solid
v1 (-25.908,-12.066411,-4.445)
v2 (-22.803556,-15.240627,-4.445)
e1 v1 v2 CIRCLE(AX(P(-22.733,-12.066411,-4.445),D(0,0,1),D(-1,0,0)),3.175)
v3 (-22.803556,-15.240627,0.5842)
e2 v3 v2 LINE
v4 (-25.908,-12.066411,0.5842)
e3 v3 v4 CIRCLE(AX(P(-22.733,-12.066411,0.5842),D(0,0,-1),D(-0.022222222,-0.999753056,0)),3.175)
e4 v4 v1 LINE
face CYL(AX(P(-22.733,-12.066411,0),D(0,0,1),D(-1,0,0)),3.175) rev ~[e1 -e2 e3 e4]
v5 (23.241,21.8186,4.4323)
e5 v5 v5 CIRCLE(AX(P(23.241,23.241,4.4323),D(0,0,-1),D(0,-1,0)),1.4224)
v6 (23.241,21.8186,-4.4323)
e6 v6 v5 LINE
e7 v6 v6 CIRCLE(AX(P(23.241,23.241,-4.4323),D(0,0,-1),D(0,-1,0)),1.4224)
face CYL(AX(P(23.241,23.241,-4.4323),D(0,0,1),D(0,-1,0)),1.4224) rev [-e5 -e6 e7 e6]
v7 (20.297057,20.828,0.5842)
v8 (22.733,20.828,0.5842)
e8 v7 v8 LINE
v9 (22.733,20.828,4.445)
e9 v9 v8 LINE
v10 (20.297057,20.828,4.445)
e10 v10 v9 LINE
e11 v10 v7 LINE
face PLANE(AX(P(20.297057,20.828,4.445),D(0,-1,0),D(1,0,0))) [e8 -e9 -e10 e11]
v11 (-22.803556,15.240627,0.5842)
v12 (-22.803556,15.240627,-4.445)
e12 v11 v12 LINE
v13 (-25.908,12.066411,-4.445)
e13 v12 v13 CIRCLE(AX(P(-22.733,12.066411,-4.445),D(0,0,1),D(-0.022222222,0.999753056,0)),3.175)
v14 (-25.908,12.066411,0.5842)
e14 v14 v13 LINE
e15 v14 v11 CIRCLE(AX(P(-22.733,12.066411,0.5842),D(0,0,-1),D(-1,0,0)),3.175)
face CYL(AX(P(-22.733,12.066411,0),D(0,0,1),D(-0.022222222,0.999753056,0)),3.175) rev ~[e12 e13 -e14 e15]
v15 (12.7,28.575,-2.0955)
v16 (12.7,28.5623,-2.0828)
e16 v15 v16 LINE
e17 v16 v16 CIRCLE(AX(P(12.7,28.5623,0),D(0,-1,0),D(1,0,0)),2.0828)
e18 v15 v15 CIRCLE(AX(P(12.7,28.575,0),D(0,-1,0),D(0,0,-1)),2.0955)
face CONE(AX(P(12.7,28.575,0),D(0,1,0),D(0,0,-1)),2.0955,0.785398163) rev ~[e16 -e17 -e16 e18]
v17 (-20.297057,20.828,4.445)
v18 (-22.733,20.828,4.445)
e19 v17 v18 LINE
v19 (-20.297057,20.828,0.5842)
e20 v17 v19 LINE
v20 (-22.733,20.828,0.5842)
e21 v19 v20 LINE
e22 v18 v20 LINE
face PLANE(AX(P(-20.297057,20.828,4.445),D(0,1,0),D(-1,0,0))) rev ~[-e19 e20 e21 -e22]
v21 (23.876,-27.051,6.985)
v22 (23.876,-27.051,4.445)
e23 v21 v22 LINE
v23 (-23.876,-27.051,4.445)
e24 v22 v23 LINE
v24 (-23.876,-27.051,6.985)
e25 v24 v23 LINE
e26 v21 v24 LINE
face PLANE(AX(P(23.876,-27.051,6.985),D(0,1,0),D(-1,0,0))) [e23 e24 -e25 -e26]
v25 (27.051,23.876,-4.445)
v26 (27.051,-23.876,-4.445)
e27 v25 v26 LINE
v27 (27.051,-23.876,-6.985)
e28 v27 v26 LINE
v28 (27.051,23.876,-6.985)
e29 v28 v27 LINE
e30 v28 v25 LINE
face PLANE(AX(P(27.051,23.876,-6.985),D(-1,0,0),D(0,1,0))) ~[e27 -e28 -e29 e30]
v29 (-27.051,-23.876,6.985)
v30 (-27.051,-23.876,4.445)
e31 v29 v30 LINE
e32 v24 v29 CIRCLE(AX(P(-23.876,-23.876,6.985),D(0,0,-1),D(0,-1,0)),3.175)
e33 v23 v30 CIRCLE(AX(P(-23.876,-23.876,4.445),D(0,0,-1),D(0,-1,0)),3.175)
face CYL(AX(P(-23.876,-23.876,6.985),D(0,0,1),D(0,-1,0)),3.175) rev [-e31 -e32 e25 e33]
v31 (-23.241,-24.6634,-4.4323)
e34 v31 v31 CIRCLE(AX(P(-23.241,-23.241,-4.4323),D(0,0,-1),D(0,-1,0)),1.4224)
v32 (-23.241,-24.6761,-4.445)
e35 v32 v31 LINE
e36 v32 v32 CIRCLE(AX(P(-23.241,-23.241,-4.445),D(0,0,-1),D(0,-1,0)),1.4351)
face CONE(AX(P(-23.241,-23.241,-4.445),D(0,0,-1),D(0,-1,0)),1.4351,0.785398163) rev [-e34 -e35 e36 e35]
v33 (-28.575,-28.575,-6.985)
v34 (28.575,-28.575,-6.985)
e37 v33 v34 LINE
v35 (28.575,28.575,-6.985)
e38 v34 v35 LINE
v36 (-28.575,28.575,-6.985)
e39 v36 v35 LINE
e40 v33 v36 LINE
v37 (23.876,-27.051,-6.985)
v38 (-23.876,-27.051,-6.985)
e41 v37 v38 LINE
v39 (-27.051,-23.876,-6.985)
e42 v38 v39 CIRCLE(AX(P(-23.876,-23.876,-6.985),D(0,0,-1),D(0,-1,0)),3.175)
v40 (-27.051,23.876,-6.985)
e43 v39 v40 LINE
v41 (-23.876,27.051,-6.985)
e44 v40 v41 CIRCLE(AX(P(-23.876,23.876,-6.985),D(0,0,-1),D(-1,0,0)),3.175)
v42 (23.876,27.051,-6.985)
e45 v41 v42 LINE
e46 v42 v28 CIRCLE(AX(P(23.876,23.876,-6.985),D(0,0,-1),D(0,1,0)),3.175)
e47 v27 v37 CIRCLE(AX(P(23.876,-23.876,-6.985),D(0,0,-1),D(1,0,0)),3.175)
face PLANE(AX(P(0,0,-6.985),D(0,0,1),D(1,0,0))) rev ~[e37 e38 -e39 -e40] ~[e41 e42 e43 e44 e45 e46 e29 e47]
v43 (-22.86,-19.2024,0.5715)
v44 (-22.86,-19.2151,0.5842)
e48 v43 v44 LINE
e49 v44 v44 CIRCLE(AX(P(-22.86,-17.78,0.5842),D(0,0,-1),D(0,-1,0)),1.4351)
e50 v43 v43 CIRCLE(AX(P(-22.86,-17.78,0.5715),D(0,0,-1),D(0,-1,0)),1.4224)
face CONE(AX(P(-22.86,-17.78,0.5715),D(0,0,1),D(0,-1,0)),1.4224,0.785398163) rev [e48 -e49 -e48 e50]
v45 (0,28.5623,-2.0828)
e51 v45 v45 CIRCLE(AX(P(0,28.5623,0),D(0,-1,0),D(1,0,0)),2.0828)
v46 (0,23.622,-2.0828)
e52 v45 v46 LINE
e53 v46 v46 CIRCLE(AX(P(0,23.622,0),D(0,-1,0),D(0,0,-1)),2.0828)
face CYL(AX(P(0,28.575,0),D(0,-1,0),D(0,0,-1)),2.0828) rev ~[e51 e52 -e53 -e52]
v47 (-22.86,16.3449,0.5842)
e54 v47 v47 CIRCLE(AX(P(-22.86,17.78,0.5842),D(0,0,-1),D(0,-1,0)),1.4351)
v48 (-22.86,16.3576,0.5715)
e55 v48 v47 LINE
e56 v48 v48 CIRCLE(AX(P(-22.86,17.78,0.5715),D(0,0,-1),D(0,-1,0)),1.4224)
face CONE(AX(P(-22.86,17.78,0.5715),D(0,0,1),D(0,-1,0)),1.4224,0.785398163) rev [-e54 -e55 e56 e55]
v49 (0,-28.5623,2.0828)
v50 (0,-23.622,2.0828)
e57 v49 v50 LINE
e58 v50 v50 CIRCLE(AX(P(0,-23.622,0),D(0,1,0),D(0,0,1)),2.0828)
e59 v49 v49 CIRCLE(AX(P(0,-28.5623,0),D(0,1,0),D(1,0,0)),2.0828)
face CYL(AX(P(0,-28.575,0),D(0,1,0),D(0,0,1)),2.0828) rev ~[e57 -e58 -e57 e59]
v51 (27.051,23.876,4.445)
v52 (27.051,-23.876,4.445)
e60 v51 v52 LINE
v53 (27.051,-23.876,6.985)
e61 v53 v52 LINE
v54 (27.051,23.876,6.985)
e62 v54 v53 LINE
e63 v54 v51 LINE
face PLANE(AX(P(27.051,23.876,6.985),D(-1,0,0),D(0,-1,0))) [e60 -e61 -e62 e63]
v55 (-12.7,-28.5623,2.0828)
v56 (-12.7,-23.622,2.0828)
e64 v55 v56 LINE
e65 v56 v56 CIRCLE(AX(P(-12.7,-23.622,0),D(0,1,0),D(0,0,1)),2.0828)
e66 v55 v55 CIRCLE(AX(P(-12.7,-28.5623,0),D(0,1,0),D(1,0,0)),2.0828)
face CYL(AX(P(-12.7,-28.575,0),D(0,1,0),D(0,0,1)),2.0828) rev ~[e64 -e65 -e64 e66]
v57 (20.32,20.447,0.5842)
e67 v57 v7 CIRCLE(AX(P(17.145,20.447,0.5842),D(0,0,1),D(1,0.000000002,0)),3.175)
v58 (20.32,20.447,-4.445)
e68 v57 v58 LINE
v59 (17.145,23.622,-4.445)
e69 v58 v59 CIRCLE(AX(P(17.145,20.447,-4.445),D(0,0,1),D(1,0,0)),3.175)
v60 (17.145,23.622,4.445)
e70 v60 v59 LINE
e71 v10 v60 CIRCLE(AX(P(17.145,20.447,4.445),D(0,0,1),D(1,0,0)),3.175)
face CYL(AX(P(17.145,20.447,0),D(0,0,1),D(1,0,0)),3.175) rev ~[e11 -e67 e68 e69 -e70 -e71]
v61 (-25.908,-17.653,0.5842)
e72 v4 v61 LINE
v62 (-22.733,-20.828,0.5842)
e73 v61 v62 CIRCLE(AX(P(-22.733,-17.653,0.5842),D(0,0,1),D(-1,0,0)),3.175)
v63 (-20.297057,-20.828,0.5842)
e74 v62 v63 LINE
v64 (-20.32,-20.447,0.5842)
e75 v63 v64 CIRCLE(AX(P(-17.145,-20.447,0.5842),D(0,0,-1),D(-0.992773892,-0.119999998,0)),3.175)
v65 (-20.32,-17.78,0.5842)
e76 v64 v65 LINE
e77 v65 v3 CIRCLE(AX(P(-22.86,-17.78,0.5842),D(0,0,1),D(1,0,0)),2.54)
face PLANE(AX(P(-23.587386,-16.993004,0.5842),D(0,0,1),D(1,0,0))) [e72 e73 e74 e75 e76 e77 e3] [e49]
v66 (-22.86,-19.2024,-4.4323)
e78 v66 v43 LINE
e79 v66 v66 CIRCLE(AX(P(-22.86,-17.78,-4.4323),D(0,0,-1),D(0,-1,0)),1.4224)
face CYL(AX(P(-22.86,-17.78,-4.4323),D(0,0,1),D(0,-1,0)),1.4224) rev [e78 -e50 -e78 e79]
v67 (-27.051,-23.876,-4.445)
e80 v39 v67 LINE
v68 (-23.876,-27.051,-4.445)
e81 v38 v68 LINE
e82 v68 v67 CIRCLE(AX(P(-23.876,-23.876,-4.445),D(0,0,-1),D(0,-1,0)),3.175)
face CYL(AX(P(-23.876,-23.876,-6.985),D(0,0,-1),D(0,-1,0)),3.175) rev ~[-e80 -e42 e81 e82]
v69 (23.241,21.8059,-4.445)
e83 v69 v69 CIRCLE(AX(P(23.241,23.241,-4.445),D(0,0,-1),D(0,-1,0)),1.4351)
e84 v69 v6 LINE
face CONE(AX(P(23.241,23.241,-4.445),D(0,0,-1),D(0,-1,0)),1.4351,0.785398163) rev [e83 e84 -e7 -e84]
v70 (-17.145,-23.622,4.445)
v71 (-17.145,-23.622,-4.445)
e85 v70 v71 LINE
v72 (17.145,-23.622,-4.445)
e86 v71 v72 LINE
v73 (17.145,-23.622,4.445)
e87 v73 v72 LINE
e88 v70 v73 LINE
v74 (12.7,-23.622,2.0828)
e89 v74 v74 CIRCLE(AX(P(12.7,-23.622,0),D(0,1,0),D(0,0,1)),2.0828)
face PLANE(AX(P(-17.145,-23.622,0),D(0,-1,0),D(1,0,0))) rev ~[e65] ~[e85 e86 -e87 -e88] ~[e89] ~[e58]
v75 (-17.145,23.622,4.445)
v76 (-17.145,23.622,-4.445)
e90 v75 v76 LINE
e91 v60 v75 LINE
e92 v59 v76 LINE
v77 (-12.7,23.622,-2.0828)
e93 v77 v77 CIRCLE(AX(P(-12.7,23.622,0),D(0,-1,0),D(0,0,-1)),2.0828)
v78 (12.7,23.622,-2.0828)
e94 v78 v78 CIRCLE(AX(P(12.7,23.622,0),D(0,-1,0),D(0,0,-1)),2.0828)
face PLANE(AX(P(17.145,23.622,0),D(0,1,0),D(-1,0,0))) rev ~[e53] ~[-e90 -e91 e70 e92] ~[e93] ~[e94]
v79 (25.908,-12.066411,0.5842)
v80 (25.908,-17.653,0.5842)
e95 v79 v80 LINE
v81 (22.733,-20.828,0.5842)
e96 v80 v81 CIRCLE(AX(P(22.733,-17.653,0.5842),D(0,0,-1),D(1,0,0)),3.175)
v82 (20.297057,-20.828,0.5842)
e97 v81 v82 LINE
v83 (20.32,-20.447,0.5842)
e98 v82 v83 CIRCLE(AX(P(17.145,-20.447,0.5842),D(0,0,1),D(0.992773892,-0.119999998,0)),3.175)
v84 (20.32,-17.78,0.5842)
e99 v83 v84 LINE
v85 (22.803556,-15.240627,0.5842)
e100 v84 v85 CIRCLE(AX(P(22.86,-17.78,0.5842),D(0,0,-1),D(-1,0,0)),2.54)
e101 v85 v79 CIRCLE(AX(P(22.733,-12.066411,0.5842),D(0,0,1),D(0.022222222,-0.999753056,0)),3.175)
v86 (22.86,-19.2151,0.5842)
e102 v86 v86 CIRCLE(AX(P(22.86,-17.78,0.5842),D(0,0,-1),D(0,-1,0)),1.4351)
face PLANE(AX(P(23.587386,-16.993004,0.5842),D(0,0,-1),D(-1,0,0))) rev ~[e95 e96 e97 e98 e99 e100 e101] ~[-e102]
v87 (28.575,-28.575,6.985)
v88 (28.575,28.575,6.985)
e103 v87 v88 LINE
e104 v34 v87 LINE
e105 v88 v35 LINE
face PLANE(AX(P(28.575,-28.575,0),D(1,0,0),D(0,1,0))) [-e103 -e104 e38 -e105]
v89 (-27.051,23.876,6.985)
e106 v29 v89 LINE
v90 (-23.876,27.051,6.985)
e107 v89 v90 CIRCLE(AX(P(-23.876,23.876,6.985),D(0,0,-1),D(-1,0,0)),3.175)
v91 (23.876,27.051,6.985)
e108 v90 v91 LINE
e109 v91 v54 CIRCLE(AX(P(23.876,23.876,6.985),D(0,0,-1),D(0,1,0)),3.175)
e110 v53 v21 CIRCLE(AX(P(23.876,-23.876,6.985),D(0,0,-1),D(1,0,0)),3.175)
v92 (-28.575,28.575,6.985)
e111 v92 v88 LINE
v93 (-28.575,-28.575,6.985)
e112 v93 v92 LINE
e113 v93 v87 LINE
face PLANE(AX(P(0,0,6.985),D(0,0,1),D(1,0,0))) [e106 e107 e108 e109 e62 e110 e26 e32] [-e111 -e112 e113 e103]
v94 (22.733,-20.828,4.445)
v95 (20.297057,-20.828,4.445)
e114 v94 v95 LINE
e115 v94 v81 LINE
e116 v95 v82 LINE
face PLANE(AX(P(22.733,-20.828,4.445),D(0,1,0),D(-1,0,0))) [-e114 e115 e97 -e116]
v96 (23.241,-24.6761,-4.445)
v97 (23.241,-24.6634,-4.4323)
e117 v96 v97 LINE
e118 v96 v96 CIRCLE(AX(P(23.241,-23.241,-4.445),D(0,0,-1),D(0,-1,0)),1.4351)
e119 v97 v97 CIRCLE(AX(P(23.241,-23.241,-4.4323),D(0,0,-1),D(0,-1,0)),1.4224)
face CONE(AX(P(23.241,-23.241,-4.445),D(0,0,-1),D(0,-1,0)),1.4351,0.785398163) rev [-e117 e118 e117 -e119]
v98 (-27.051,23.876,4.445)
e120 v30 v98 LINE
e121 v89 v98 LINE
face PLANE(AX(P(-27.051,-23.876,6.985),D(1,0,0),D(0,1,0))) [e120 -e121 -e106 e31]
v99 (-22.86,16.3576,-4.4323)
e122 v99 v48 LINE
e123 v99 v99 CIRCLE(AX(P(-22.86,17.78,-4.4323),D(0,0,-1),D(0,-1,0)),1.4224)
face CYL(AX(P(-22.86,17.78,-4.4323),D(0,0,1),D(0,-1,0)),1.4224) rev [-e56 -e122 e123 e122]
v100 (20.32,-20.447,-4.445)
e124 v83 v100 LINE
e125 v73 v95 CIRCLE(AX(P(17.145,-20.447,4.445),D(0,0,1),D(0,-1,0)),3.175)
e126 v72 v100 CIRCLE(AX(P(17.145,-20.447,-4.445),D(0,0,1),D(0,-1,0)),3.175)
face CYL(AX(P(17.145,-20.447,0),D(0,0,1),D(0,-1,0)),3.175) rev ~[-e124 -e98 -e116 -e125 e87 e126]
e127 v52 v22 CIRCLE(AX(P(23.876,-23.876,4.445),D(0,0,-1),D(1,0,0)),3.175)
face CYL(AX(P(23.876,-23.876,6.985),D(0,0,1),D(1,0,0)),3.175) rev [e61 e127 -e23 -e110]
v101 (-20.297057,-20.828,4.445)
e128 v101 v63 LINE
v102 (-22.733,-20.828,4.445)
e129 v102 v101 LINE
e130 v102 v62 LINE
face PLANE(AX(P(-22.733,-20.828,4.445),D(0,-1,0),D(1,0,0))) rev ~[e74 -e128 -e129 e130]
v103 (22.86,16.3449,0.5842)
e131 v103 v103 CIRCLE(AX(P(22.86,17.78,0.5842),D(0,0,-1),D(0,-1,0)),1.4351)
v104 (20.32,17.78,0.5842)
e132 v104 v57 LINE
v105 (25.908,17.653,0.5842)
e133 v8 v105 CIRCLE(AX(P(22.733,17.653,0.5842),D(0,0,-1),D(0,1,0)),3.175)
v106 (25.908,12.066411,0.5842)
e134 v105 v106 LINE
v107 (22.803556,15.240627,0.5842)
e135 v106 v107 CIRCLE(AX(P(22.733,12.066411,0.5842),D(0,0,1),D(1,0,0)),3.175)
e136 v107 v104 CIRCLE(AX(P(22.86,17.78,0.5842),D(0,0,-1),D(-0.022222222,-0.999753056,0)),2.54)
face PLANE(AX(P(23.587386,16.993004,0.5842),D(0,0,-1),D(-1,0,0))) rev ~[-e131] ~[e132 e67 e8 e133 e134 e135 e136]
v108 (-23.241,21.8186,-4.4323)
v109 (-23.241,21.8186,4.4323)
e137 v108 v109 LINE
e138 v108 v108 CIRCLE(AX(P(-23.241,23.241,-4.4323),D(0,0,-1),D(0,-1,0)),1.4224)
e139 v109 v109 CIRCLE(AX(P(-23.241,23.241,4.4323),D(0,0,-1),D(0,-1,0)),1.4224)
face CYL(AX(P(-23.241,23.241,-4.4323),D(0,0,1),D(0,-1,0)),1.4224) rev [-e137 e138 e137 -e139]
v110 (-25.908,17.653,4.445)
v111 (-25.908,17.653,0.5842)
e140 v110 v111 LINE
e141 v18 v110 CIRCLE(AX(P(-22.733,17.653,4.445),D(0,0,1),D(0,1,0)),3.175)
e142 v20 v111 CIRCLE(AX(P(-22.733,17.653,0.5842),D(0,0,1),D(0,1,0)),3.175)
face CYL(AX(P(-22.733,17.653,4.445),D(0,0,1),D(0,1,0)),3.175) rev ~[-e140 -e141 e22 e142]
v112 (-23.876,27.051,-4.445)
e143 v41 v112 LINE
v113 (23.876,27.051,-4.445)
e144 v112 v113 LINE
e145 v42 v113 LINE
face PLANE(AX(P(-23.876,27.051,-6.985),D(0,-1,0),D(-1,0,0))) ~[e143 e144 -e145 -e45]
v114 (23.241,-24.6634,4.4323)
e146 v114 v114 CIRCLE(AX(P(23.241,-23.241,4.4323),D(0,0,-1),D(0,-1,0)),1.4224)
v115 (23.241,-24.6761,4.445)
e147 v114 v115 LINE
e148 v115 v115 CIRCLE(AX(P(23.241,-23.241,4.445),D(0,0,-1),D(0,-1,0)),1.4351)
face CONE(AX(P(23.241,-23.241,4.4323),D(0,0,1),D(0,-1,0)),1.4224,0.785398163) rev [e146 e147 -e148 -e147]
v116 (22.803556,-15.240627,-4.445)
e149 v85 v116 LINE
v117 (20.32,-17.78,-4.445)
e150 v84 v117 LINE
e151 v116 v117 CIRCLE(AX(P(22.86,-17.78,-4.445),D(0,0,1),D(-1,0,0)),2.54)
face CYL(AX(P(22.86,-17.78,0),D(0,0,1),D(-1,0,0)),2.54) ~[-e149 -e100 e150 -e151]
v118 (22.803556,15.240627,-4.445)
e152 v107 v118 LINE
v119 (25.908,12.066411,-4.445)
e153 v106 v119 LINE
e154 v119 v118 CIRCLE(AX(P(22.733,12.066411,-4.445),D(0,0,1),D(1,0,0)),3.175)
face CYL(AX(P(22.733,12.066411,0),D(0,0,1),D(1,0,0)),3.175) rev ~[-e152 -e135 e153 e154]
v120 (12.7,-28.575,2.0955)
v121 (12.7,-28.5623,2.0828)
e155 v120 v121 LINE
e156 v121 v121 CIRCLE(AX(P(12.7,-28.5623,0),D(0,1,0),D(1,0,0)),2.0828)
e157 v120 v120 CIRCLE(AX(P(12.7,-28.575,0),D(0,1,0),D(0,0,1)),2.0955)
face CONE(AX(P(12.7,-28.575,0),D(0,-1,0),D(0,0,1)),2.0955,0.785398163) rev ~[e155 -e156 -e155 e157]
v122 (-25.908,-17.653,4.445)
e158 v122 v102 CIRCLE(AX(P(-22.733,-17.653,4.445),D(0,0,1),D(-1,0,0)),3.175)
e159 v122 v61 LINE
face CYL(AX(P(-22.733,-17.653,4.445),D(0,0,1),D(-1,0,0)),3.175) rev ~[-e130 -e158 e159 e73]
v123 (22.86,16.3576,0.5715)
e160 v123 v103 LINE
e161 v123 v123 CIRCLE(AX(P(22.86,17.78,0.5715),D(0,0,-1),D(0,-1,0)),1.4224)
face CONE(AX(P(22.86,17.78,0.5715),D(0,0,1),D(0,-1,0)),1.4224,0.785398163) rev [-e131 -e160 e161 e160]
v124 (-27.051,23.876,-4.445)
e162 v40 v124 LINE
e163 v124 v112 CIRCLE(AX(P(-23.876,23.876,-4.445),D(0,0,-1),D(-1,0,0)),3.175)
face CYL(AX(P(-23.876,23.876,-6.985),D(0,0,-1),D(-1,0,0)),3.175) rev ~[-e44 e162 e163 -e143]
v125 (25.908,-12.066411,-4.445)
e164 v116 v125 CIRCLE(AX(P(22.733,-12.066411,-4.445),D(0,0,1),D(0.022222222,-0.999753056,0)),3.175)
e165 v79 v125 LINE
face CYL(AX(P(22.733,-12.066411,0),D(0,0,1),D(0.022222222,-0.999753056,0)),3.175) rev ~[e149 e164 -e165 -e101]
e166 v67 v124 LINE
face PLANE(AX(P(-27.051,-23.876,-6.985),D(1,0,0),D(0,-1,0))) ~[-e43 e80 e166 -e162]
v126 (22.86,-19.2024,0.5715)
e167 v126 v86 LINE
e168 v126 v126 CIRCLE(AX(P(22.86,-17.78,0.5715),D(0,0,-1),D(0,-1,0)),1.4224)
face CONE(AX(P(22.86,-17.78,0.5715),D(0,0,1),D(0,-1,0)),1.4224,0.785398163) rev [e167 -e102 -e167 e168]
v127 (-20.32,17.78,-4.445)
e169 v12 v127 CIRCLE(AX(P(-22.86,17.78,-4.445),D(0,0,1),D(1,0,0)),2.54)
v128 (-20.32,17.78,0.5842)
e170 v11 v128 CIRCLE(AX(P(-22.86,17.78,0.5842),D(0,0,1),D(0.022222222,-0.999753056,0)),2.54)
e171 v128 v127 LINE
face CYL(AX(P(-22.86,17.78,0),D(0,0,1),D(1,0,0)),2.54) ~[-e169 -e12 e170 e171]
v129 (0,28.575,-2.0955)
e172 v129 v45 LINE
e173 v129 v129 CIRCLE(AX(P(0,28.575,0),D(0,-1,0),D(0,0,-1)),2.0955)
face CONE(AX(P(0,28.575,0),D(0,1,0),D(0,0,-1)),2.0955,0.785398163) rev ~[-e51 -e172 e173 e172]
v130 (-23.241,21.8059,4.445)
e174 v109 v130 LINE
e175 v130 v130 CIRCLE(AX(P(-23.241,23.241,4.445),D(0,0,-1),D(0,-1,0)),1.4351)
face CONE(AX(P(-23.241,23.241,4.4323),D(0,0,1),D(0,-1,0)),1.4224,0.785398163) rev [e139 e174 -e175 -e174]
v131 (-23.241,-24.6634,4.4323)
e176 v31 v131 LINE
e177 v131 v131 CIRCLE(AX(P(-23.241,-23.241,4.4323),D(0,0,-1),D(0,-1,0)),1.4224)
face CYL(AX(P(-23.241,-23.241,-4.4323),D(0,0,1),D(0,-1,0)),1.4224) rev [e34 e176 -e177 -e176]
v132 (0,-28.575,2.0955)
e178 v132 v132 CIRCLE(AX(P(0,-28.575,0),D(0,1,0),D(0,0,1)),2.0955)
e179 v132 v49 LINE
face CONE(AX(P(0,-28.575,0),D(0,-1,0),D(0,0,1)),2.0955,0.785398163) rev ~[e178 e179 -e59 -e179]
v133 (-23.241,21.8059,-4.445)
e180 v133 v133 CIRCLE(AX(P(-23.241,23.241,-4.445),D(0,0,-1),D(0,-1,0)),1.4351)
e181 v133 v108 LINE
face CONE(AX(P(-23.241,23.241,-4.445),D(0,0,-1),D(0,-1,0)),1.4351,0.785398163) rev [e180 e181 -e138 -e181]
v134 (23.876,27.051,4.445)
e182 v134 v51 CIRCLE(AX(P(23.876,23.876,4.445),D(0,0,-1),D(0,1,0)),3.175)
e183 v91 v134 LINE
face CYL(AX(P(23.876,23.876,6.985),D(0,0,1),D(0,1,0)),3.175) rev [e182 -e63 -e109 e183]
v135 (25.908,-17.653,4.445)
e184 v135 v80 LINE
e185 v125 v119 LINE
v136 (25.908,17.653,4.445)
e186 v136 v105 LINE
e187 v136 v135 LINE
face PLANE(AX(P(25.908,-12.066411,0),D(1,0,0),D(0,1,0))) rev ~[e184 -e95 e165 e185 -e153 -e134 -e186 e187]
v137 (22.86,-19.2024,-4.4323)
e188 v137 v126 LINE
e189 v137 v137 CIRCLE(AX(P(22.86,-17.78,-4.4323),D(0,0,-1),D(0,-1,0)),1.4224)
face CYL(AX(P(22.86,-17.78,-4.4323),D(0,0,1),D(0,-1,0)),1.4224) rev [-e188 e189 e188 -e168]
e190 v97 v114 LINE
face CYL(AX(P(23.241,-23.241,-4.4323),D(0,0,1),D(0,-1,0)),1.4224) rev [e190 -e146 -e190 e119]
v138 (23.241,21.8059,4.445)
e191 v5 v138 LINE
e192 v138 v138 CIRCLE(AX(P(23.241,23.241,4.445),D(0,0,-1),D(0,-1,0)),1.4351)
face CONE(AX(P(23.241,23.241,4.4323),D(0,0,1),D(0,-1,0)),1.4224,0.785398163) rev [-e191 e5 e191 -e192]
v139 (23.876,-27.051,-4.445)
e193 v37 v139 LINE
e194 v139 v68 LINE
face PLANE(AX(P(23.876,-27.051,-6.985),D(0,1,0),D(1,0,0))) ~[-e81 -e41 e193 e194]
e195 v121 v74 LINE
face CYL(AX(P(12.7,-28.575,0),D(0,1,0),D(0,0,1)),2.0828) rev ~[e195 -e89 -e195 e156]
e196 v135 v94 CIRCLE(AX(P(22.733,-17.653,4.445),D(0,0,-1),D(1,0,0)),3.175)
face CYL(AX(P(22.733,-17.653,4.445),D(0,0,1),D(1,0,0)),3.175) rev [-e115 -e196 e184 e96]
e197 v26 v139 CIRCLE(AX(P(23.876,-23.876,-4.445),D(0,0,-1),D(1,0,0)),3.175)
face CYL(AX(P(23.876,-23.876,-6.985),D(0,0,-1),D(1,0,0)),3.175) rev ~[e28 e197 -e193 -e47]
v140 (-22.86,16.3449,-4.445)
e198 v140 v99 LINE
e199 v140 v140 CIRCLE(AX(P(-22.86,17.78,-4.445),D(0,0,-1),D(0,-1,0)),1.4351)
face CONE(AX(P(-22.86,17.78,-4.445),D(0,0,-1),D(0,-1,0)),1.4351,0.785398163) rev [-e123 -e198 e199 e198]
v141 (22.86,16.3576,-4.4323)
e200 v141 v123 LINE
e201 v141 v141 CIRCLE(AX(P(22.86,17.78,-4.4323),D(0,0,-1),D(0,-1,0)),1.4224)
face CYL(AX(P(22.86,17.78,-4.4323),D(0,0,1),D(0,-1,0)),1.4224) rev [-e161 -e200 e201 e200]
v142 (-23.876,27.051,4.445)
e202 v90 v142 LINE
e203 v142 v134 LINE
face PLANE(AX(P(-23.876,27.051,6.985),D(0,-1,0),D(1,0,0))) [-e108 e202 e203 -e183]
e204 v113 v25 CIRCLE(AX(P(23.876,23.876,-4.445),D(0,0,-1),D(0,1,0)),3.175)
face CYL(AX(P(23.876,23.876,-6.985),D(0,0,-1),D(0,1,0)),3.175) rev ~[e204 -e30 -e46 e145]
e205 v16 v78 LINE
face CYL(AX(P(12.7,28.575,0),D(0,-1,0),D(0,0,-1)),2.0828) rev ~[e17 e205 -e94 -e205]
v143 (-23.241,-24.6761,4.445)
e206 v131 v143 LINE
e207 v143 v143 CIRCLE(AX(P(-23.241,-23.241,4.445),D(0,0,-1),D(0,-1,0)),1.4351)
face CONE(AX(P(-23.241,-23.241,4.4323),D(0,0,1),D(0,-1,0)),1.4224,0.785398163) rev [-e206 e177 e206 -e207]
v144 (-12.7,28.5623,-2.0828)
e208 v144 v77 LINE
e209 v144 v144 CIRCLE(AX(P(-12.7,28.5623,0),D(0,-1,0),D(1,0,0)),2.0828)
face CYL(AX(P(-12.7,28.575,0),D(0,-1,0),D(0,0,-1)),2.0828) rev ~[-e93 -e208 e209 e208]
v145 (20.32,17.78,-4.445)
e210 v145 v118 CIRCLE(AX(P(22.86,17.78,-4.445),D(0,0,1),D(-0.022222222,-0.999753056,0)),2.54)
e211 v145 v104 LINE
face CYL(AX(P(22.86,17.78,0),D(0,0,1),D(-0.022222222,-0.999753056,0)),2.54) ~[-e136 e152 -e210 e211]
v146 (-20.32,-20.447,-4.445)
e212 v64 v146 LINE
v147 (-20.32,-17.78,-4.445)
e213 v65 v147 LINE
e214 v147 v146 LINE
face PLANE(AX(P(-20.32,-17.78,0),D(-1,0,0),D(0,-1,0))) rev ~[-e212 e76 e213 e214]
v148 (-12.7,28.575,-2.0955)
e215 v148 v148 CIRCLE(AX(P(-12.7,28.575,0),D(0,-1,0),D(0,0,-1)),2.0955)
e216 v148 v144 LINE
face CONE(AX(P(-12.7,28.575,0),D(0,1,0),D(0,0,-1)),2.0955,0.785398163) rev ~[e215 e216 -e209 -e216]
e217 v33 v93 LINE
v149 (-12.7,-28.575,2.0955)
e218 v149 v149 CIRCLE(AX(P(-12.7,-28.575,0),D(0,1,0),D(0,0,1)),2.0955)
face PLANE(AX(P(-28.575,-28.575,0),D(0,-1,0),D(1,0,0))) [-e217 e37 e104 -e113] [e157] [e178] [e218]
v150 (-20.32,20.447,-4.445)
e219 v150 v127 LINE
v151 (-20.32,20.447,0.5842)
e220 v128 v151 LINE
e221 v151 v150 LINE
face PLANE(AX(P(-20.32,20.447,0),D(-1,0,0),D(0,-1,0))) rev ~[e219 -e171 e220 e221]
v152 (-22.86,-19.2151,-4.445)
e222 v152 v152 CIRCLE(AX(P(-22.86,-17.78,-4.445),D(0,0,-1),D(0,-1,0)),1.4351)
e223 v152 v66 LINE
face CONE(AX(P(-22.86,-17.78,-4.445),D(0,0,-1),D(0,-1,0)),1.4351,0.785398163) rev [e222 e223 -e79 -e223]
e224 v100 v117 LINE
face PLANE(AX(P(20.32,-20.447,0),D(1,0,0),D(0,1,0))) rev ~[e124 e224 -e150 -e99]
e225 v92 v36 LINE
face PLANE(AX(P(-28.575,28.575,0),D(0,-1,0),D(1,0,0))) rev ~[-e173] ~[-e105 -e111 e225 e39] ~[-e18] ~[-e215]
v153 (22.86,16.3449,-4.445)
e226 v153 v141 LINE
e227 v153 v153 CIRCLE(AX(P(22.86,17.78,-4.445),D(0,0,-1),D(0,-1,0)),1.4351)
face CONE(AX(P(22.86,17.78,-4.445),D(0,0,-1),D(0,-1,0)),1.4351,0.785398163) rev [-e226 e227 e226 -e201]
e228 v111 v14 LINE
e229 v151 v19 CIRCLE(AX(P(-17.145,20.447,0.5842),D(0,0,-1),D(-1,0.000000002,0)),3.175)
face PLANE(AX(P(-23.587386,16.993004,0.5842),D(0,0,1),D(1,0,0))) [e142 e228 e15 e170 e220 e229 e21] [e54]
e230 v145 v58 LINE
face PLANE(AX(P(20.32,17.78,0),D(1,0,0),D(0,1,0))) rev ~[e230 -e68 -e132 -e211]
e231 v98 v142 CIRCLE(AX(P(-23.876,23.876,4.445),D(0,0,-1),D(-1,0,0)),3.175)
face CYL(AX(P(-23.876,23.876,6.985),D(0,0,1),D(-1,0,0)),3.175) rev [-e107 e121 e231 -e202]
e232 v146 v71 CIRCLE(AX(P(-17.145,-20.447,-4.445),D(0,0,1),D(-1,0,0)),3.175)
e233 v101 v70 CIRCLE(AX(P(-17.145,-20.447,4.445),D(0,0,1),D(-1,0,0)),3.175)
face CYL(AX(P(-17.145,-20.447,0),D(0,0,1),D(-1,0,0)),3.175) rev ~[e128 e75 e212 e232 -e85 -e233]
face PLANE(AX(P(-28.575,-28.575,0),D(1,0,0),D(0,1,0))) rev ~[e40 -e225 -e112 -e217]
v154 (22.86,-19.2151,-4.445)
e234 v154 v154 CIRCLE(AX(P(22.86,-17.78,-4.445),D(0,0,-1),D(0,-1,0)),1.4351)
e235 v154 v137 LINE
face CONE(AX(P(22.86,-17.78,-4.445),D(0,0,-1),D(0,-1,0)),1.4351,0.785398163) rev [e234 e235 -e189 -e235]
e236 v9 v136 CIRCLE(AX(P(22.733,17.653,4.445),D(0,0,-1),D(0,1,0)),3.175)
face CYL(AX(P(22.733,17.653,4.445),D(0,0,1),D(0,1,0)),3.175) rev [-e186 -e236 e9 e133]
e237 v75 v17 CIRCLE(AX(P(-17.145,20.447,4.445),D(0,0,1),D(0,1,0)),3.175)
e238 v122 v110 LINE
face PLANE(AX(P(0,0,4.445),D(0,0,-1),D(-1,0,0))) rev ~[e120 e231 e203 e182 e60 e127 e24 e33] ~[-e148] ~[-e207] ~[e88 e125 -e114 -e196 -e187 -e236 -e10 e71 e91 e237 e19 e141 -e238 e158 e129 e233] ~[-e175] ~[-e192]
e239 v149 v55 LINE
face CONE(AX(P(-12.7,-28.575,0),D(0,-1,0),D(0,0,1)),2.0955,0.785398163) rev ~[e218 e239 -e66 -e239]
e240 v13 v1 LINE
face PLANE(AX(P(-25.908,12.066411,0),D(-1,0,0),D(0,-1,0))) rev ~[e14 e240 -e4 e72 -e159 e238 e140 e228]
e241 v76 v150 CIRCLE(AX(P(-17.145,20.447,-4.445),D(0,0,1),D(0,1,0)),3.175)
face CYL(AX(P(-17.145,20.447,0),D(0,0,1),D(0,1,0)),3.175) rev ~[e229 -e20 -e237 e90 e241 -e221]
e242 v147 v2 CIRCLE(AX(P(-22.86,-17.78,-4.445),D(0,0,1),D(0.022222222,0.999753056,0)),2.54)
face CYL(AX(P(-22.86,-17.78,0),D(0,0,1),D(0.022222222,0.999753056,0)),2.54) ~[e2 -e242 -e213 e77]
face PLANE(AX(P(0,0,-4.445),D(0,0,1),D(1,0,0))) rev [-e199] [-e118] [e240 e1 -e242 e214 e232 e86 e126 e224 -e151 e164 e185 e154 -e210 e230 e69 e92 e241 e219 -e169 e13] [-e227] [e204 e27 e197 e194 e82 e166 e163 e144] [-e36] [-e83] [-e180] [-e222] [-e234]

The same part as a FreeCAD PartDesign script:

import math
import FreeCAD as App
import Part
import Sketcher
from FreeCAD import Vector
Q = App.Units.Quantity


def add_polygon(sketch, points):
    """Adds a closed chain of lines whose ends are joined by coincident constraints."""
    first, n = sketch.GeometryCount, len(points)
    for a, b in zip(points, points[1:] + points[:1]):
        sketch.addGeometry(Part.LineSegment(App.Vector(*a, 0), App.Vector(*b, 0)), False)
    for i in range(n):
        sketch.addConstraint(Sketcher.Constraint("Coincident", first + i, 2, first + (i + 1) % n, 1))

doc = App.newDocument("Part")
body = doc.addObject("PartDesign::Body", "Body")

# Sketch on XY plane
sketch1 = body.newObject("Sketcher::SketchObject", "Sketch")
sketch1.AttachmentSupport = (doc.getObject("XY_Plane"), [""])
sketch1.MapMode = "FlatFace"
add_polygon(sketch1, [(-28.6, 28.6), (-28.6, -28.6), (28.6, -28.6), (28.6, 28.6)])  # lines 0-3
sketch1.addGeometry(Part.LineSegment(Vector(20.3, 20.4, 0), Vector(20.3, 17.8, 0)), False)  # 4
sketch1.addGeometry(Part.ArcOfCircle(Part.Circle(Vector(22.9, 17.8, 0), Vector(0, 0, 1), 2.5), math.radians(180), math.radians(269)), False)  # 5
sketch1.addGeometry(Part.ArcOfCircle(Part.Circle(Vector(22.7, 12.1, 0), Vector(0, 0, 1), 3.2), math.radians(0), math.radians(89)), False)  # 6
sketch1.addGeometry(Part.LineSegment(Vector(25.9, 12.1, 0), Vector(25.9, -12.1, 0)), False)  # 7
sketch1.addGeometry(Part.ArcOfCircle(Part.Circle(Vector(22.7, -12.1, 0), Vector(0, 0, 1), 3.2), math.radians(-89), math.radians(0)), False)  # 8
sketch1.addGeometry(Part.ArcOfCircle(Part.Circle(Vector(22.9, -17.8, 0), Vector(0, 0, 1), 2.5), math.radians(91), math.radians(180)), False)  # 9
sketch1.addGeometry(Part.LineSegment(Vector(20.3, -17.8, 0), Vector(20.3, -20.4, 0)), False)  # 10
sketch1.addGeometry(Part.ArcOfCircle(Part.Circle(Vector(17.1, -20.4, 0), Vector(0, 0, 1), 3.2), math.radians(-90), math.radians(0)), False)  # 11
sketch1.addGeometry(Part.LineSegment(Vector(17.1, -23.6, 0), Vector(-17.1, -23.6, 0)), False)  # 12
sketch1.addGeometry(Part.ArcOfCircle(Part.Circle(Vector(-17.1, -20.4, 0), Vector(0, 0, 1), 3.2), math.radians(-180), math.radians(-90)), False)  # 13
sketch1.addGeometry(Part.LineSegment(Vector(-20.3, -20.4, 0), Vector(-20.3, -17.8, 0)), False)  # 14
sketch1.addGeometry(Part.ArcOfCircle(Part.Circle(Vector(-22.9, -17.8, 0), Vector(0, 0, 1), 2.5), math.radians(0), math.radians(89)), False)  # 15
sketch1.addGeometry(Part.ArcOfCircle(Part.Circle(Vector(-22.7, -12.1, 0), Vector(0, 0, 1), 3.2), math.radians(180), math.radians(269)), False)  # 16
sketch1.addGeometry(Part.LineSegment(Vector(-25.9, -12.1, 0), Vector(-25.9, 12.1, 0)), False)  # 17
sketch1.addGeometry(Part.ArcOfCircle(Part.Circle(Vector(-22.7, 12.1, 0), Vector(0, 0, 1), 3.2), math.radians(91), math.radians(180)), False)  # 18
sketch1.addGeometry(Part.ArcOfCircle(Part.Circle(Vector(-22.9, 17.8, 0), Vector(0, 0, 1), 2.5), math.radians(-89), math.radians(0)), False)  # 19
sketch1.addGeometry(Part.LineSegment(Vector(-20.3, 17.8, 0), Vector(-20.3, 20.4, 0)), False)  # 20
sketch1.addGeometry(Part.ArcOfCircle(Part.Circle(Vector(-17.1, 20.4, 0), Vector(0, 0, 1), 3.2), math.radians(90), math.radians(180)), False)  # 21
sketch1.addGeometry(Part.LineSegment(Vector(-17.1, 23.6, 0), Vector(17.1, 23.6, 0)), False)  # 22
sketch1.addGeometry(Part.ArcOfCircle(Part.Circle(Vector(17.1, 20.4, 0), Vector(0, 0, 1), 3.2), math.radians(0), math.radians(90)), False)  # 23
sketch1.addConstraint([
    Sketcher.Constraint("Tangent", 4, 2, 5, 1),
    Sketcher.Constraint("Tangent", 5, 2, 6, 2),
    Sketcher.Constraint("Tangent", 6, 1, 7, 1),
    Sketcher.Constraint("Tangent", 7, 2, 8, 2),
    Sketcher.Constraint("Tangent", 8, 1, 9, 1),
    Sketcher.Constraint("Tangent", 9, 2, 10, 1),
    Sketcher.Constraint("Tangent", 10, 2, 11, 2),
    Sketcher.Constraint("Tangent", 11, 1, 12, 1),
    Sketcher.Constraint("Tangent", 12, 2, 13, 2),
    Sketcher.Constraint("Tangent", 13, 1, 14, 1),
    Sketcher.Constraint("Tangent", 14, 2, 15, 1),
    Sketcher.Constraint("Tangent", 15, 2, 16, 2),
    Sketcher.Constraint("Tangent", 16, 1, 17, 1),
    Sketcher.Constraint("Tangent", 17, 2, 18, 2),
    Sketcher.Constraint("Tangent", 18, 1, 19, 1),
    Sketcher.Constraint("Tangent", 19, 2, 20, 1),
    Sketcher.Constraint("Tangent", 20, 2, 21, 2),
    Sketcher.Constraint("Tangent", 21, 1, 22, 1),
    Sketcher.Constraint("Tangent", 22, 2, 23, 2),
    Sketcher.Constraint("Tangent", 23, 1, 4, 1),
    Sketcher.Constraint("Vertical", 0),
    Sketcher.Constraint("Horizontal", 1),
    Sketcher.Constraint("Vertical", 2),
    Sketcher.Constraint("Horizontal", 3),
    Sketcher.Constraint("Vertical", 4),
    Sketcher.Constraint("Vertical", 7),
    Sketcher.Constraint("Vertical", 10),
    Sketcher.Constraint("Horizontal", 12),
    Sketcher.Constraint("Vertical", 14),
    Sketcher.Constraint("Vertical", 17),
    Sketcher.Constraint("Vertical", 20),
    Sketcher.Constraint("Horizontal", 22),
    Sketcher.Constraint("Equal", 6, 8),
    Sketcher.Constraint("Equal", 5, 9),
    Sketcher.Constraint("Equal", 8, 11),
    Sketcher.Constraint("Equal", 11, 13),
    Sketcher.Constraint("Equal", 9, 15),
    Sketcher.Constraint("Equal", 13, 16),
    Sketcher.Constraint("Equal", 16, 18),
    Sketcher.Constraint("Equal", 15, 19),
    Sketcher.Constraint("Equal", 18, 21),
    Sketcher.Constraint("Equal", 21, 23),
    Sketcher.Constraint("Symmetric", 5, 3, 15, 3, -1, 1),
    Sketcher.Constraint("Symmetric", 8, 3, 18, 3, -1, 1),
    Sketcher.Constraint("Symmetric", 11, 3, 21, 3, -1, 1),
    Sketcher.Constraint("Symmetric", 0, 2, 2, 2, -1, 1),
    Sketcher.Constraint("Symmetric", 9, 3, 15, 3, -2),
    Sketcher.Constraint("Equal", 3, 0),
    Sketcher.Constraint("Radius", 5, Q("0.1 in")),
    Sketcher.Constraint("Radius", 6, Q("0.125 in")),
    Sketcher.Constraint("DistanceX", 1, 1, 1, 2, Q("2.25 in")),
    Sketcher.Constraint("DistanceX", 12, 2, 12, 1, Q("1.35 in")),
    Sketcher.Constraint("DistanceY", -1, 1, 5, 3, Q("0.7 in")),
    Sketcher.Constraint("DistanceY", 4, 2, 4, 1, Q("0.105 in")),
    Sketcher.Constraint("DistanceX", -1, 1, 6, 1, Q("1.02 in")),
])
pad1 = body.newObject("PartDesign::Pad", "Pad")
pad1.Profile = sketch1
pad1.Length = Q("0.55 in")
pad1.Midplane = True

# Sketch on XY plane
sketch2 = body.newObject("Sketcher::SketchObject", "Sketch001")
sketch2.AttachmentSupport = (doc.getObject("XY_Plane"), [""])
sketch2.MapMode = "FlatFace"
sketch2.AttachmentOffset = App.Placement(Vector(0, 0, 0.275 * 25.4), App.Rotation())
sketch2.addGeometry([
    Part.LineSegment(Vector(23.9, 27.1, 0), Vector(-23.9, 27.1, 0)),  # 0
    Part.ArcOfCircle(Part.Circle(Vector(-23.9, 23.9, 0), Vector(0, 0, 1), 3.2), math.radians(90), math.radians(180)),  # 1
    Part.LineSegment(Vector(-27.1, 23.9, 0), Vector(-27.1, -23.9, 0)),  # 2
    Part.ArcOfCircle(Part.Circle(Vector(-23.9, -23.9, 0), Vector(0, 0, 1), 3.2), math.radians(-180), math.radians(-90)),  # 3
    Part.LineSegment(Vector(-23.9, -27.1, 0), Vector(23.9, -27.1, 0)),  # 4
    Part.ArcOfCircle(Part.Circle(Vector(23.9, -23.9, 0), Vector(0, 0, 1), 3.2), math.radians(-90), math.radians(0)),  # 5
    Part.LineSegment(Vector(27.1, -23.9, 0), Vector(27.1, 23.9, 0)),  # 6
    Part.ArcOfCircle(Part.Circle(Vector(23.9, 23.9, 0), Vector(0, 0, 1), 3.2), math.radians(0), math.radians(90)),  # 7
], False)
sketch2.addConstraint([
    Sketcher.Constraint("Tangent", 0, 2, 1, 1),
    Sketcher.Constraint("Tangent", 1, 2, 2, 1),
    Sketcher.Constraint("Tangent", 2, 2, 3, 1),
    Sketcher.Constraint("Tangent", 3, 2, 4, 1),
    Sketcher.Constraint("Tangent", 4, 2, 5, 1),
    Sketcher.Constraint("Tangent", 5, 2, 6, 1),
    Sketcher.Constraint("Tangent", 6, 2, 7, 1),
    Sketcher.Constraint("Tangent", 7, 2, 0, 1),
    Sketcher.Constraint("Horizontal", 0),
    Sketcher.Constraint("Vertical", 2),
    Sketcher.Constraint("Horizontal", 4),
    Sketcher.Constraint("Vertical", 6),
    Sketcher.Constraint("Equal", 1, 3),
    Sketcher.Constraint("Equal", 3, 5),
    Sketcher.Constraint("Equal", 5, 7),
    Sketcher.Constraint("Symmetric", 1, 3, 5, 3, -1, 1),
    Sketcher.Constraint("Equal", 4, 2),
    Sketcher.Constraint("Radius", 1, Q("0.125 in")),
    Sketcher.Constraint("DistanceX", 0, 2, 0, 1, Q("1.88 in")),
])
pocket1 = body.newObject("PartDesign::Pocket", "Pocket")
pocket1.Profile = sketch2
pocket1.Length = Q("0.1 in")
doc.recompute()

mirrored = body.newObject("PartDesign::Mirrored", "Mirrored")
mirrored.Originals = [pocket1]
mirrored.MirrorPlane = (doc.getObject("XY_Plane"), [""])
body.Tip = mirrored

# Sketch on XY plane
sketch3 = body.newObject("Sketcher::SketchObject", "Sketch002")
sketch3.AttachmentSupport = (doc.getObject("XY_Plane"), [""])
sketch3.MapMode = "FlatFace"
sketch3.AttachmentOffset = App.Placement(Vector(0, 0, 0.175 * 25.4), App.Rotation())
sketch3.addGeometry([
    Part.LineSegment(Vector(-20.32, 17.78, 0), Vector(-20.32, 20.45, 0)),  # 0
    Part.ArcOfCircle(Part.Circle(Vector(-17.14, 20.45, 0), Vector(0, 0, 1), 3.18), math.radians(173.11), math.radians(180)),  # 1
    Part.LineSegment(Vector(-20.3, 20.83, 0), Vector(-22.73, 20.83, 0)),  # 2
    Part.ArcOfCircle(Part.Circle(Vector(-22.73, 17.65, 0), Vector(0, 0, 1), 3.18), math.radians(90), math.radians(180)),  # 3
    Part.LineSegment(Vector(-25.91, 17.65, 0), Vector(-25.91, 12.07, 0)),  # 4
    Part.ArcOfCircle(Part.Circle(Vector(-22.73, 12.07, 0), Vector(0, 0, 1), 3.17), math.radians(91), math.radians(180)),  # 5
    Part.ArcOfCircle(Part.Circle(Vector(-22.86, 17.78, 0), Vector(0, 0, 1), 2.54), math.radians(-89), math.radians(0)),  # 6
    Part.LineSegment(Vector(25.91, -17.65, 0), Vector(25.91, -12.07, 0)),  # 7
    Part.ArcOfCircle(Part.Circle(Vector(22.73, -12.07, 0), Vector(0, 0, 1), 3.17), math.radians(-89), math.radians(0)),  # 8
    Part.ArcOfCircle(Part.Circle(Vector(22.86, -17.78, 0), Vector(0, 0, 1), 2.54), math.radians(91), math.radians(180)),  # 9
    Part.LineSegment(Vector(20.32, -17.78, 0), Vector(20.32, -20.45, 0)),  # 10
    Part.ArcOfCircle(Part.Circle(Vector(17.14, -20.45, 0), Vector(0, 0, 1), 3.18), math.radians(-6.89), math.radians(0)),  # 11
    Part.LineSegment(Vector(20.3, -20.83, 0), Vector(22.73, -20.83, 0)),  # 12
    Part.ArcOfCircle(Part.Circle(Vector(22.73, -17.65, 0), Vector(0, 0, 1), 3.18), math.radians(-90), math.radians(0)),  # 13
    Part.LineSegment(Vector(-25.91, -12.07, 0), Vector(-25.91, -17.65, 0)),  # 14
    Part.ArcOfCircle(Part.Circle(Vector(-22.73, -17.65, 0), Vector(0, 0, 1), 3.18), math.radians(-180), math.radians(-90)),  # 15
    Part.LineSegment(Vector(-22.73, -20.83, 0), Vector(-20.3, -20.83, 0)),  # 16
    Part.ArcOfCircle(Part.Circle(Vector(-17.14, -20.45, 0), Vector(0, 0, 1), 3.18), math.radians(-180), math.radians(-173.11)),  # 17
    Part.LineSegment(Vector(-20.32, -20.45, 0), Vector(-20.32, -17.78, 0)),  # 18
    Part.ArcOfCircle(Part.Circle(Vector(-22.86, -17.78, 0), Vector(0, 0, 1), 2.54), math.radians(0), math.radians(89)),  # 19
    Part.ArcOfCircle(Part.Circle(Vector(-22.73, -12.07, 0), Vector(0, 0, 1), 3.17), math.radians(180), math.radians(269)),  # 20
    Part.LineSegment(Vector(22.73, 20.83, 0), Vector(20.3, 20.83, 0)),  # 21
    Part.ArcOfCircle(Part.Circle(Vector(17.14, 20.45, 0), Vector(0, 0, 1), 3.18), math.radians(0), math.radians(6.89)),  # 22
    Part.LineSegment(Vector(20.32, 20.45, 0), Vector(20.32, 17.78, 0)),  # 23
    Part.ArcOfCircle(Part.Circle(Vector(22.86, 17.78, 0), Vector(0, 0, 1), 2.54), math.radians(180), math.radians(269)),  # 24
    Part.ArcOfCircle(Part.Circle(Vector(22.73, 12.07, 0), Vector(0, 0, 1), 3.17), math.radians(0), math.radians(89)),  # 25
    Part.LineSegment(Vector(25.91, 12.07, 0), Vector(25.91, 17.65, 0)),  # 26
    Part.ArcOfCircle(Part.Circle(Vector(22.73, 17.65, 0), Vector(0, 0, 1), 3.18), math.radians(0), math.radians(90)),  # 27
], False)
sketch3.addConstraint([
    Sketcher.Constraint("Tangent", 0, 2, 1, 2),
    Sketcher.Constraint("Coincident", 1, 1, 2, 1),
    Sketcher.Constraint("Tangent", 2, 2, 3, 1),
    Sketcher.Constraint("Tangent", 3, 2, 4, 1),
    Sketcher.Constraint("Tangent", 4, 2, 5, 2),
    Sketcher.Constraint("Tangent", 5, 1, 6, 1),
    Sketcher.Constraint("Tangent", 6, 2, 0, 1),
    Sketcher.Constraint("Tangent", 7, 2, 8, 2),
    Sketcher.Constraint("Tangent", 8, 1, 9, 1),
    Sketcher.Constraint("Tangent", 9, 2, 10, 1),
    Sketcher.Constraint("Tangent", 10, 2, 11, 2),
    Sketcher.Constraint("Coincident", 11, 1, 12, 1),
    Sketcher.Constraint("Tangent", 12, 2, 13, 1),
    Sketcher.Constraint("Tangent", 13, 2, 7, 1),
    Sketcher.Constraint("Tangent", 14, 2, 15, 1),
    Sketcher.Constraint("Tangent", 15, 2, 16, 1),
    Sketcher.Constraint("Coincident", 16, 2, 17, 2),
    Sketcher.Constraint("Tangent", 17, 1, 18, 1),
    Sketcher.Constraint("Tangent", 18, 2, 19, 1),
    Sketcher.Constraint("Tangent", 19, 2, 20, 2),
    Sketcher.Constraint("Tangent", 20, 1, 14, 1),
    Sketcher.Constraint("Coincident", 21, 2, 22, 2),
    Sketcher.Constraint("Tangent", 22, 1, 23, 1),
    Sketcher.Constraint("Tangent", 23, 2, 24, 1),
    Sketcher.Constraint("Tangent", 24, 2, 25, 2),
    Sketcher.Constraint("Tangent", 25, 1, 26, 1),
    Sketcher.Constraint("Tangent", 26, 2, 27, 1),
    Sketcher.Constraint("Tangent", 27, 2, 21, 1),
    Sketcher.Constraint("Vertical", 0),
    Sketcher.Constraint("Horizontal", 2),
    Sketcher.Constraint("Vertical", 4),
    Sketcher.Constraint("Vertical", 7),
    Sketcher.Constraint("Vertical", 10),
    Sketcher.Constraint("Horizontal", 12),
    Sketcher.Constraint("Vertical", 14),
    Sketcher.Constraint("Horizontal", 16),
    Sketcher.Constraint("Vertical", 18),
    Sketcher.Constraint("Horizontal", 21),
    Sketcher.Constraint("Vertical", 23),
    Sketcher.Constraint("Vertical", 26),
    Sketcher.Constraint("Equal", 1, 3),
    Sketcher.Constraint("Equal", 3, 5),
    Sketcher.Constraint("Equal", 5, 8),
    Sketcher.Constraint("Equal", 6, 9),
    Sketcher.Constraint("Equal", 8, 11),
    Sketcher.Constraint("Equal", 11, 13),
    Sketcher.Constraint("Equal", 13, 15),
    Sketcher.Constraint("Equal", 15, 17),
    Sketcher.Constraint("Equal", 9, 19),
    Sketcher.Constraint("Equal", 17, 20),
    Sketcher.Constraint("Equal", 20, 22),
    Sketcher.Constraint("Equal", 19, 24),
    Sketcher.Constraint("Equal", 22, 25),
    Sketcher.Constraint("Equal", 25, 27),
    Sketcher.Constraint("Symmetric", 5, 3, 8, 3, -1, 1),
    Sketcher.Constraint("Symmetric", 1, 3, 11, 3, -1, 1),
    Sketcher.Constraint("Symmetric", 17, 3, 22, 3, -1, 1),
    Sketcher.Constraint("Symmetric", 20, 3, 25, 3, -1, 1),
    Sketcher.Constraint("Symmetric", 13, 3, 15, 3, -2),
    Sketcher.Constraint("Symmetric", 11, 3, 17, 3, -2),
    Sketcher.Constraint("Horizontal", 9, 3, 19, 3),
    Sketcher.Constraint("Horizontal", 3, 3, 27, 3),
    Sketcher.Constraint("Vertical", 1, 1, 16, 2),
    Sketcher.Constraint("Radius", 6, Q("0.1 in")),
    Sketcher.Constraint("Radius", 1, Q("0.125 in")),
    Sketcher.Constraint("DistanceX", 6, 3, -1, 1, Q("0.9 in")),
    Sketcher.Constraint("DistanceY", -1, 1, 6, 3, Q("0.7 in")),
    Sketcher.Constraint("DistanceY", 11, 3, 3, 3, Q("1.5 in")),
    Sketcher.Constraint("DistanceY", 0, 1, 0, 2, Q("0.105 in")),
    Sketcher.Constraint("DistanceX", 3, 2, -1, 1, Q("1.02 in")),
])
pocket2 = body.newObject("PartDesign::Pocket", "Pocket001")
pocket2.Profile = sketch3
pocket2.Length = Q("0.152 in")

# Sketch on YZ plane
sketch4 = body.newObject("Sketcher::SketchObject", "Sketch003")
sketch4.AttachmentSupport = (doc.getObject("YZ_Plane"), [""])
sketch4.MapMode = "FlatFace"
sketch4.AttachmentOffset = App.Placement(Vector(0, 0, 0.9 * 25.4), App.Rotation())
add_polygon(sketch4, [(17.78, -4.445), (17.78, 0.584), (16.345, 0.584), (16.358, 0.572), (16.358, -4.432), (16.345, -4.445)])  # lines 0-5
sketch4.addGeometry(Part.LineSegment(Vector(17.78, 0.584, 0), Vector(17.78, -4.445, 0)), True)  # axis
sketch4.addConstraint([
    Sketcher.Constraint("Vertical", 0),
    Sketcher.Constraint("Horizontal", 1),
    Sketcher.Constraint("Vertical", 3),
    Sketcher.Constraint("Horizontal", 5),
    Sketcher.Constraint("Vertical", 6),
    Sketcher.Constraint("Coincident", 6, 1, 0, 2),
    Sketcher.Constraint("Perpendicular", 2, 4),
    Sketcher.Constraint("Horizontal", 4, 2, 6, 2),
    Sketcher.Constraint("Vertical", 1, 2, 4, 2),
    Sketcher.Constraint("Equal", 2, 4),
    Sketcher.Constraint("DistanceX", -1, 1, 0, 2, Q("0.7 in")),
    Sketcher.Constraint("DistanceY", 0, 1, 0, 2, Q("0.198 in")),
    Sketcher.Constraint("DistanceY", 3, 2, 3, 1, Q("0.197 in")),
    Sketcher.Constraint("DistanceX", 1, 2, 1, 1, Q("0.0565 in")),
    Sketcher.Constraint("DistanceY", -1, 1, 0, 2, Q("0.023 in")),
])
groove = body.newObject("PartDesign::Groove", "Groove")
groove.Profile = sketch4
groove.ReferenceAxis = (sketch4, ["Axis0"])
groove.Angle = 360
doc.recompute()

linearpattern = body.newObject("PartDesign::LinearPattern", "LinearPattern")
linearpattern.Originals = [groove]
linearpattern.Direction = (doc.getObject("X_Axis"), [""])
linearpattern.Mode = "offset"
linearpattern.Offset = Q("1.8 in")
linearpattern.Occurrences = 2
linearpattern.Reversed = True
body.Tip = linearpattern
doc.recompute()

linearpattern2 = body.newObject("PartDesign::LinearPattern", "LinearPattern001")
linearpattern2.Originals = [groove]
linearpattern2.Direction = (doc.getObject("Y_Axis"), [""])
linearpattern2.Mode = "offset"
linearpattern2.Offset = Q("1.4 in")
linearpattern2.Occurrences = 2
linearpattern2.Reversed = True
body.Tip = linearpattern2
doc.recompute()

datumline = body.newObject("PartDesign::Line", "DatumLine")
datumline.Placement = App.Placement(Vector(0, 0, 0), App.Rotation(Vector(0, 0, 1), Vector(-0.789352217, -0.613940614, 0)))
linearpattern3 = body.newObject("PartDesign::LinearPattern", "LinearPattern002")
linearpattern3.Originals = [groove]
linearpattern3.Direction = (datumline, [""])
linearpattern3.Mode = "offset"
linearpattern3.Offset = 57.920912
linearpattern3.Occurrences = 2
body.Tip = linearpattern3

# Sketch on YZ plane
sketch5 = body.newObject("Sketcher::SketchObject", "Sketch004")
sketch5.AttachmentSupport = (doc.getObject("YZ_Plane"), [""])
sketch5.MapMode = "FlatFace"
sketch5.AttachmentOffset = App.Placement(Vector(0, 0, -0.915 * 25.4), App.Rotation())
add_polygon(sketch5, [(23.241, -4.445), (23.241, 4.445), (21.806, 4.445), (21.819, 4.432), (21.819, -4.432), (21.806, -4.445)])  # lines 0-5
sketch5.addGeometry(Part.LineSegment(Vector(23.241, 4.445, 0), Vector(23.241, -4.445, 0)), True)  # axis
sketch5.addConstraint([
    Sketcher.Constraint("Vertical", 0),
    Sketcher.Constraint("Horizontal", 1),
    Sketcher.Constraint("Vertical", 3),
    Sketcher.Constraint("Horizontal", 5),
    Sketcher.Constraint("Vertical", 6),
    Sketcher.Constraint("Coincident", 6, 1, 0, 2),
    Sketcher.Constraint("Symmetric", 1, 2, 4, 2, -1),
    Sketcher.Constraint("Perpendicular", 2, 4),
    Sketcher.Constraint("Horizontal", 4, 2, 6, 2),
    Sketcher.Constraint("Equal", 2, 4),
    Sketcher.Constraint("DistanceY", 0, 1, 0, 2, Q("0.35 in")),
    Sketcher.Constraint("DistanceY", 3, 2, 3, 1, Q("0.349 in")),
    Sketcher.Constraint("DistanceX", 1, 2, 1, 1, Q("0.0565 in")),
    Sketcher.Constraint("DistanceX", -1, 1, 0, 2, Q("0.915 in")),
])
groove2 = body.newObject("PartDesign::Groove", "Groove001")
groove2.Profile = sketch5
groove2.ReferenceAxis = (sketch5, ["Axis0"])
groove2.Angle = 360
doc.recompute()

linearpattern4 = body.newObject("PartDesign::LinearPattern", "LinearPattern003")
linearpattern4.Originals = [groove2]
linearpattern4.Direction = (doc.getObject("X_Axis"), [""])
linearpattern4.Mode = "offset"
linearpattern4.Offset = Q("1.83 in")
linearpattern4.Occurrences = 2
body.Tip = linearpattern4
doc.recompute()

datumline2 = body.newObject("PartDesign::Line", "DatumLine001")
datumline2.Placement = App.Placement(Vector(0, 0, 0), App.Rotation(Vector(0, 0, 1), Vector(0.707106781, -0.707106781, 0)))
linearpattern5 = body.newObject("PartDesign::LinearPattern", "LinearPattern004")
linearpattern5.Originals = [groove2]
linearpattern5.Direction = (datumline2, [""])
linearpattern5.Mode = "offset"
linearpattern5.Offset = 65.735475
linearpattern5.Occurrences = 2
body.Tip = linearpattern5
doc.recompute()

linearpattern6 = body.newObject("PartDesign::LinearPattern", "LinearPattern005")
linearpattern6.Originals = [groove2]
linearpattern6.Direction = (doc.getObject("Y_Axis"), [""])
linearpattern6.Mode = "offset"
linearpattern6.Offset = Q("1.83 in")
linearpattern6.Occurrences = 2
linearpattern6.Reversed = True
body.Tip = linearpattern6

# Sketch on XZ plane
sketch6 = body.newObject("Sketcher::SketchObject", "Sketch005")
sketch6.AttachmentSupport = (doc.getObject("XZ_Plane"), [""])
sketch6.MapMode = "FlatFace"
sketch6.AttachmentOffset = App.Placement(Vector(0, 0, -1.125 * 25.4), App.Rotation())
sketch6.addGeometry([
    Part.Circle(Vector(-12.7, 0, 0), Vector(0, 0, 1), 2.1),
    Part.Circle(Vector(12.7, 0, 0), Vector(0, 0, 1), 2.1),
    Part.Circle(Vector(0, 0, 0), Vector(0, 0, 1), 2.1),
], False)
sketch6.addConstraint([
    Sketcher.Constraint("Coincident", 2, 3, -1, 1),
    Sketcher.Constraint("Equal", 0, 1),
    Sketcher.Constraint("Equal", 1, 2),
    Sketcher.Constraint("Symmetric", 0, 3, 1, 3, -1, 1),
    Sketcher.Constraint("PointOnObject", 0, 3, -1),
    Sketcher.Constraint("Diameter", 0, Q("0.164 in")),
    Sketcher.Constraint("DistanceX", 0, 3, 1, 3, Q("1 in")),
])
doc.recompute()
hole = body.newObject("PartDesign::Hole", "Hole")
hole.Profile = sketch6
hole.ThreadType = "None"
hole.Diameter = Q("0.164 in")
hole.DepthType = "Dimension"
hole.Depth = Q("0.195 in")
hole.DrillPoint = "Flat"
hole.HoleCutType = "Countersink"
hole.HoleCutDiameter = Q("0.165 in")
hole.HoleCutCountersinkAngle = 90
hole.Reversed = True

# Sketch on XZ plane
sketch7 = body.newObject("Sketcher::SketchObject", "Sketch006")
sketch7.AttachmentSupport = (doc.getObject("XZ_Plane"), [""])
sketch7.MapMode = "FlatFace"
sketch7.AttachmentOffset = App.Placement(Vector(0, 0, 1.125 * 25.4), App.Rotation())
sketch7.addGeometry([
    Part.Circle(Vector(12.7, 0, 0), Vector(0, 0, 1), 2.1),
    Part.Circle(Vector(0, 0, 0), Vector(0, 0, 1), 2.1),
    Part.Circle(Vector(-12.7, 0, 0), Vector(0, 0, 1), 2.1),
], False)
sketch7.addConstraint([
    Sketcher.Constraint("Coincident", 1, 3, -1, 1),
    Sketcher.Constraint("Equal", 0, 1),
    Sketcher.Constraint("Equal", 1, 2),
    Sketcher.Constraint("Symmetric", 0, 3, 2, 3, -1, 1),
    Sketcher.Constraint("PointOnObject", 0, 3, -1),
    Sketcher.Constraint("Diameter", 0, Q("0.164 in")),
    Sketcher.Constraint("DistanceX", 2, 3, 0, 3, Q("1 in")),
])
doc.recompute()
hole2 = body.newObject("PartDesign::Hole", "Hole001")
hole2.Profile = sketch7
hole2.ThreadType = "None"
hole2.Diameter = Q("0.164 in")
hole2.DepthType = "Dimension"
hole2.Depth = Q("0.195 in")
hole2.DrillPoint = "Flat"
hole2.HoleCutType = "Countersink"
hole2.HoleCutDiameter = Q("0.165 in")
hole2.HoleCutCountersinkAngle = 90

doc.recompute()
